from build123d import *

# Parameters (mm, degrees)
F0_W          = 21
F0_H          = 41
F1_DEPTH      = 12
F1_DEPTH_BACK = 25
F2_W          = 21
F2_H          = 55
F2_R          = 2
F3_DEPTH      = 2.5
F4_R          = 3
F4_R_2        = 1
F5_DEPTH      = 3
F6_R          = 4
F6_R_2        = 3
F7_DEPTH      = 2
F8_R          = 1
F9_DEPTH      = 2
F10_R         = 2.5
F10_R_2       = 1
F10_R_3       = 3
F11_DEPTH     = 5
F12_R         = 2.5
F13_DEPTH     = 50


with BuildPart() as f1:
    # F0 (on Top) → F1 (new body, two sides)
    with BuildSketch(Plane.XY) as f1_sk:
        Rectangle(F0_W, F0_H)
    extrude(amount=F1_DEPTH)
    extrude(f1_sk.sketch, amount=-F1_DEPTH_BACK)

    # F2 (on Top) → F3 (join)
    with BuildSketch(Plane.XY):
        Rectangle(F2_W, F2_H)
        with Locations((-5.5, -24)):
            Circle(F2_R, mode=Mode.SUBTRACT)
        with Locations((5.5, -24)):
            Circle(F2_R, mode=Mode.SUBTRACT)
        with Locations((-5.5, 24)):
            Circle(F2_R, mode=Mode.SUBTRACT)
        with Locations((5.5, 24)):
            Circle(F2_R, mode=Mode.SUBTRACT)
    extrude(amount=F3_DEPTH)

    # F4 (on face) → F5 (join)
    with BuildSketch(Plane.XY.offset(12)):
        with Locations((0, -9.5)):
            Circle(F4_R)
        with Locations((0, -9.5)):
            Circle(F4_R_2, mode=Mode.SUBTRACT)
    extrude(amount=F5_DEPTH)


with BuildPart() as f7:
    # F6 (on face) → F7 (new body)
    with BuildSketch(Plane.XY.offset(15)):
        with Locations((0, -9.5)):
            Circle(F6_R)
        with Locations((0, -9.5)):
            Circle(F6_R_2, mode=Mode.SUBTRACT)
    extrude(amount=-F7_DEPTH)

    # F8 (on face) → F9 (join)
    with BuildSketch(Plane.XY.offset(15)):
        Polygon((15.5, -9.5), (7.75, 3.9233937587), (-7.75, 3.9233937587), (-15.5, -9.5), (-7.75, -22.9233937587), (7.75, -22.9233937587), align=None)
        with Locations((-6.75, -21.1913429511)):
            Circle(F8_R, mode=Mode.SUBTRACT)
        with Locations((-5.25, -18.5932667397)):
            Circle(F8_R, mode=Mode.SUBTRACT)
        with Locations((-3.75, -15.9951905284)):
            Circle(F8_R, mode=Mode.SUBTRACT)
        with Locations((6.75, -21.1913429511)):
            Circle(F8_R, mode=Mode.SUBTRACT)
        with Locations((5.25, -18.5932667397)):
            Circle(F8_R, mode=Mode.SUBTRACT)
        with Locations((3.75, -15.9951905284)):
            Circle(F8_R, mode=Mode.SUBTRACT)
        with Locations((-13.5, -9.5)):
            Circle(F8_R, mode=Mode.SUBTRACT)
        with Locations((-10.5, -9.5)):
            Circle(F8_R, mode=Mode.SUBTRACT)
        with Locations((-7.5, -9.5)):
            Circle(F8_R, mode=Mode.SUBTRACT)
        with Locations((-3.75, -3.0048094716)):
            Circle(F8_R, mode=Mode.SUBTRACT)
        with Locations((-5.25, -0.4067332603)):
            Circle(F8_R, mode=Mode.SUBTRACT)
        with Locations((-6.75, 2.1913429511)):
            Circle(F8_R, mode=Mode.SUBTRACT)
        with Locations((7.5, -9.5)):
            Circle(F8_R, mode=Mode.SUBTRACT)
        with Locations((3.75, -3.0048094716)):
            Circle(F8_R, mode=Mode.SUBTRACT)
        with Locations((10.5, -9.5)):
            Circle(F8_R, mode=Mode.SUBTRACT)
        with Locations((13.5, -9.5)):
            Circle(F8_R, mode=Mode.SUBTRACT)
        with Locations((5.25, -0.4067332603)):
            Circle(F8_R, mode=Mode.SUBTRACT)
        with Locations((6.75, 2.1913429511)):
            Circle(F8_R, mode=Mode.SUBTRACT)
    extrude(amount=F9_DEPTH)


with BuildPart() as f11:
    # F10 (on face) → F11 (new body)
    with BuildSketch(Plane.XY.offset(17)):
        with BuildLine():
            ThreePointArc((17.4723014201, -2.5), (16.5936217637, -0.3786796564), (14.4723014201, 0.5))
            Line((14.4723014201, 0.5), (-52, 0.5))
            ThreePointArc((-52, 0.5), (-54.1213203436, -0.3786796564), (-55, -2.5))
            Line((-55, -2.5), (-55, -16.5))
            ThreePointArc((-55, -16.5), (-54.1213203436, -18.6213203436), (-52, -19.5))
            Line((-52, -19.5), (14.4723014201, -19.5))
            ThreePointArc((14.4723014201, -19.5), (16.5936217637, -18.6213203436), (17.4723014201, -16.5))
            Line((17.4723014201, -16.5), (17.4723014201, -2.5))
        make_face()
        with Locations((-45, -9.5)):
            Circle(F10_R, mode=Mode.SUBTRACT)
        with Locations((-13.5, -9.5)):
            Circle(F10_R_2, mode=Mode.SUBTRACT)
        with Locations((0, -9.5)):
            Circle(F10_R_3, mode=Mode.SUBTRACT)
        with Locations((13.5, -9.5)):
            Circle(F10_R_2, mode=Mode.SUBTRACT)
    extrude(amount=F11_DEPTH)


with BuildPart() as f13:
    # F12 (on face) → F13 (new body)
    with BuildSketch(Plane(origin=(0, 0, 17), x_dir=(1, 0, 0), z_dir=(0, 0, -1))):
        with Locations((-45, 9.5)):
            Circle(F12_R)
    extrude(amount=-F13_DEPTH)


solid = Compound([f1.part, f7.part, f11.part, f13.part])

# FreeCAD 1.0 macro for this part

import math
import FreeCAD as App
import Part
import Sketcher
Q = App.Units.Quantity

doc = App.newDocument("Part")
body = doc.addObject("PartDesign::Body", "Body")

# Sketch on XY plane
sketch1 = body.newObject("Sketcher::SketchObject", "Sketch")
sketch1.AttachmentSupport = (doc.getObject("XY_Plane"), [""])
sketch1.MapMode = "FlatFace"
sketch1.addGeometry([
    Part.LineSegment(App.Vector(-10.5, 20.5, 0), App.Vector(-10.5, -20.5, 0)),
    Part.LineSegment(App.Vector(-10.5, -20.5, 0), App.Vector(10.5, -20.5, 0)),
    Part.LineSegment(App.Vector(10.5, -20.5, 0), App.Vector(10.5, 20.5, 0)),
    Part.LineSegment(App.Vector(10.5, 20.5, 0), App.Vector(-10.5, 20.5, 0)),
], False)
sketch1.addConstraint([
    Sketcher.Constraint("Coincident", 0, 2, 1, 1),
    Sketcher.Constraint("Coincident", 1, 2, 2, 1),
    Sketcher.Constraint("Coincident", 2, 2, 3, 1),
    Sketcher.Constraint("Coincident", 3, 2, 0, 1),
    Sketcher.Constraint("Vertical", 0),
    Sketcher.Constraint("Horizontal", 1),
    Sketcher.Constraint("Vertical", 2),
    Sketcher.Constraint("Horizontal", 3),
    Sketcher.Constraint("Symmetric", 0, 2, 2, 2, -1, 1),
    Sketcher.Constraint("DistanceX", 1, 1, 1, 2, Q("21 mm")),
    Sketcher.Constraint("DistanceY", 0, 2, 0, 1, Q("41 mm")),
])
pad1 = body.newObject("PartDesign::Pad", "Pad")
pad1.Profile = sketch1
pad1.Type = "TwoLengths"
pad1.Length = 12
pad1.Length2 = 25

# Sketch on XY plane
sketch2 = body.newObject("Sketcher::SketchObject", "Sketch001")
sketch2.AttachmentSupport = (doc.getObject("XY_Plane"), [""])
sketch2.MapMode = "FlatFace"
sketch2.addGeometry([
    Part.LineSegment(App.Vector(-10.5, 27.5, 0), App.Vector(-10.5, -27.5, 0)),  # 0
    Part.LineSegment(App.Vector(-10.5, -27.5, 0), App.Vector(10.5, -27.5, 0)),  # 1
    Part.LineSegment(App.Vector(10.5, -27.5, 0), App.Vector(10.5, 27.5, 0)),  # 2
    Part.LineSegment(App.Vector(10.5, 27.5, 0), App.Vector(-10.5, 27.5, 0)),  # 3
    Part.Circle(App.Vector(-5.5, -24, 0), App.Vector(0, 0, 1), 2),  # 4
    Part.Circle(App.Vector(5.5, -24, 0), App.Vector(0, 0, 1), 2),  # 5
    Part.Circle(App.Vector(-5.5, 24, 0), App.Vector(0, 0, 1), 2),  # 6
    Part.Circle(App.Vector(5.5, 24, 0), App.Vector(0, 0, 1), 2),  # 7
], False)
sketch2.addConstraint([
    Sketcher.Constraint("Coincident", 0, 2, 1, 1),
    Sketcher.Constraint("Coincident", 1, 2, 2, 1),
    Sketcher.Constraint("Coincident", 2, 2, 3, 1),
    Sketcher.Constraint("Coincident", 3, 2, 0, 1),
    Sketcher.Constraint("Vertical", 0),
    Sketcher.Constraint("Horizontal", 1),
    Sketcher.Constraint("Vertical", 2),
    Sketcher.Constraint("Horizontal", 3),
    Sketcher.Constraint("Equal", 4, 5),
    Sketcher.Constraint("Equal", 5, 6),
    Sketcher.Constraint("Equal", 6, 7),
    Sketcher.Constraint("Symmetric", 5, 3, 6, 3, -1, 1),
    Sketcher.Constraint("Symmetric", 4, 3, 7, 3, -1, 1),
    Sketcher.Constraint("Symmetric", 0, 2, 2, 2, -1, 1),
    Sketcher.Constraint("Symmetric", 4, 3, 5, 3, -2),
    Sketcher.Constraint("Diameter", 4, Q("4 mm")),
    Sketcher.Constraint("DistanceX", 1, 1, 1, 2, Q("21 mm")),
    Sketcher.Constraint("DistanceY", 0, 2, 0, 1, Q("55 mm")),
    Sketcher.Constraint("DistanceY", 4, 3, -1, 1, Q("24 mm")),
    Sketcher.Constraint("DistanceX", 4, 3, 5, 3, Q("11 mm")),
])
pad2 = body.newObject("PartDesign::Pad", "Pad001")
pad2.Profile = sketch2
pad2.Length = 2.5

# Sketch on XY plane
sketch3 = body.newObject("Sketcher::SketchObject", "Sketch002")
sketch3.AttachmentSupport = (doc.getObject("XY_Plane"), [""])
sketch3.MapMode = "FlatFace"
sketch3.AttachmentOffset = App.Placement(App.Vector(0, 0, 12), App.Rotation())
sketch3.addGeometry([
    Part.Circle(App.Vector(0, -9.5, 0), App.Vector(0, 0, 1), 3),
    Part.Circle(App.Vector(0, -9.5, 0), App.Vector(0, 0, 1), 1),
], False)
sketch3.addConstraint([
    Sketcher.Constraint("Coincident", 1, 3, 0, 3),
    Sketcher.Constraint("PointOnObject", 0, 3, -2),
    Sketcher.Constraint("Diameter", 0, Q("6 mm")),
    Sketcher.Constraint("Diameter", 1, Q("2 mm")),
    Sketcher.Constraint("DistanceY", 0, 3, -1, 1, Q("9.5 mm")),
])
pad3 = body.newObject("PartDesign::Pad", "Pad002")
pad3.Profile = sketch3
pad3.Length = 3
body2 = doc.addObject("PartDesign::Body", "Body001")

# Sketch on XY plane
sketch4 = body2.newObject("Sketcher::SketchObject", "Sketch003")
sketch4.AttachmentSupport = (doc.getObject("XY_Plane001"), [""])
sketch4.MapMode = "FlatFace"
sketch4.AttachmentOffset = App.Placement(App.Vector(0, 0, 15), App.Rotation())
sketch4.addGeometry([
    Part.Circle(App.Vector(0, -9.5, 0), App.Vector(0, 0, 1), 4),
    Part.Circle(App.Vector(0, -9.5, 0), App.Vector(0, 0, 1), 3),
], False)
sketch4.addConstraint([
    Sketcher.Constraint("Coincident", 1, 3, 0, 3),
    Sketcher.Constraint("PointOnObject", 0, 3, -2),
    Sketcher.Constraint("Diameter", 0, Q("8 mm")),
    Sketcher.Constraint("Diameter", 1, Q("6 mm")),
    Sketcher.Constraint("DistanceY", 0, 3, -1, 1, Q("9.5 mm")),
])
pad4 = body2.newObject("PartDesign::Pad", "Pad003")
pad4.Profile = sketch4
pad4.Length = 2
pad4.Reversed = True

# Sketch on XY plane
sketch5 = body2.newObject("Sketcher::SketchObject", "Sketch004")
sketch5.AttachmentSupport = (doc.getObject("XY_Plane001"), [""])
sketch5.MapMode = "FlatFace"
sketch5.AttachmentOffset = App.Placement(App.Vector(0, 0, 15), App.Rotation())
sketch5.addGeometry([
    Part.LineSegment(App.Vector(15.5, -9.5, 0), App.Vector(7.75, 3.923394, 0)),  # 0
    Part.LineSegment(App.Vector(7.75, 3.923394, 0), App.Vector(-7.75, 3.923394, 0)),  # 1
    Part.LineSegment(App.Vector(-7.75, 3.923394, 0), App.Vector(-15.5, -9.5, 0)),  # 2
    Part.LineSegment(App.Vector(-15.5, -9.5, 0), App.Vector(-7.75, -22.923394, 0)),  # 3
    Part.LineSegment(App.Vector(-7.75, -22.923394, 0), App.Vector(7.75, -22.923394, 0)),  # 4
    Part.LineSegment(App.Vector(7.75, -22.923394, 0), App.Vector(15.5, -9.5, 0)),  # 5
    Part.Circle(App.Vector(-6.75, -21.191343, 0), App.Vector(0, 0, 1), 1),  # 6
    Part.Circle(App.Vector(-5.25, -18.593267, 0), App.Vector(0, 0, 1), 1),  # 7
    Part.Circle(App.Vector(-3.75, -15.995191, 0), App.Vector(0, 0, 1), 1),  # 8
    Part.Circle(App.Vector(6.75, -21.191343, 0), App.Vector(0, 0, 1), 1),  # 9
    Part.Circle(App.Vector(5.25, -18.593267, 0), App.Vector(0, 0, 1), 1),  # 10
    Part.Circle(App.Vector(3.75, -15.995191, 0), App.Vector(0, 0, 1), 1),  # 11
    Part.Circle(App.Vector(-13.5, -9.5, 0), App.Vector(0, 0, 1), 1),  # 12
    Part.Circle(App.Vector(-10.5, -9.5, 0), App.Vector(0, 0, 1), 1),  # 13
    Part.Circle(App.Vector(-7.5, -9.5, 0), App.Vector(0, 0, 1), 1),  # 14
    Part.Circle(App.Vector(-3.75, -3.004809, 0), App.Vector(0, 0, 1), 1),  # 15
    Part.Circle(App.Vector(-5.25, -0.406733, 0), App.Vector(0, 0, 1), 1),  # 16
    Part.Circle(App.Vector(-6.75, 2.191343, 0), App.Vector(0, 0, 1), 1),  # 17
    Part.Circle(App.Vector(7.5, -9.5, 0), App.Vector(0, 0, 1), 1),  # 18
    Part.Circle(App.Vector(10.5, -9.5, 0), App.Vector(0, 0, 1), 1),  # 19
    Part.Circle(App.Vector(13.5, -9.5, 0), App.Vector(0, 0, 1), 1),  # 20
    Part.Circle(App.Vector(3.75, -3.004809, 0), App.Vector(0, 0, 1), 1),  # 21
    Part.Circle(App.Vector(5.25, -0.406733, 0), App.Vector(0, 0, 1), 1),  # 22
    Part.Circle(App.Vector(6.75, 2.191343, 0), App.Vector(0, 0, 1), 1),  # 23
], False)
sketch5.addConstraint([
    Sketcher.Constraint("Coincident", 0, 2, 1, 1),
    Sketcher.Constraint("Coincident", 1, 2, 2, 1),
    Sketcher.Constraint("Coincident", 2, 2, 3, 1),
    Sketcher.Constraint("Coincident", 3, 2, 4, 1),
    Sketcher.Constraint("Coincident", 4, 2, 5, 1),
    Sketcher.Constraint("Coincident", 5, 2, 0, 1),
    Sketcher.Constraint("Horizontal", 1),
    Sketcher.Constraint("Horizontal", 4),
    Sketcher.Constraint("Equal", 6, 7),
    Sketcher.Constraint("Equal", 7, 8),
    Sketcher.Constraint("Equal", 8, 9),
    Sketcher.Constraint("Equal", 9, 10),
    Sketcher.Constraint("Equal", 10, 11),
    Sketcher.Constraint("Equal", 11, 12),
    Sketcher.Constraint("Equal", 12, 13),
    Sketcher.Constraint("Equal", 13, 14),
    Sketcher.Constraint("Equal", 14, 15),
    Sketcher.Constraint("Equal", 15, 16),
    Sketcher.Constraint("Equal", 16, 17),
    Sketcher.Constraint("Equal", 17, 18),
    Sketcher.Constraint("Equal", 18, 19),
    Sketcher.Constraint("Equal", 19, 20),
    Sketcher.Constraint("Equal", 20, 21),
    Sketcher.Constraint("Equal", 21, 22),
    Sketcher.Constraint("Equal", 22, 23),
    Sketcher.Constraint("Symmetric", 6, 3, 9, 3, -2),
    Sketcher.Constraint("Symmetric", 7, 3, 10, 3, -2),
    Sketcher.Constraint("Symmetric", 8, 3, 11, 3, -2),
    Sketcher.Constraint("Symmetric", 14, 3, 18, 3, -2),
    Sketcher.Constraint("Symmetric", 13, 3, 19, 3, -2),
    Sketcher.Constraint("Symmetric", 12, 3, 20, 3, -2),
    Sketcher.Constraint("Symmetric", 15, 3, 21, 3, -2),
    Sketcher.Constraint("Symmetric", 16, 3, 22, 3, -2),
    Sketcher.Constraint("Symmetric", 17, 3, 23, 3, -2),
    Sketcher.Constraint("Symmetric", 2, 2, 5, 2, -2),
    Sketcher.Constraint("Parallel", 0, 3),
    Sketcher.Constraint("Parallel", 2, 5),
    Sketcher.Constraint("Horizontal", 12, 3, 13, 3),
    Sketcher.Constraint("Horizontal", 13, 3, 14, 3),
    Sketcher.Constraint("Horizontal", 20, 3, 2, 2),
    Sketcher.Constraint("Vertical", 8, 3, 15, 3),
    Sketcher.Constraint("Vertical", 7, 3, 16, 3),
    Sketcher.Constraint("Vertical", 6, 3, 17, 3),
    Sketcher.Constraint("Vertical", 1, 2, 3, 2),
    Sketcher.Constraint("Vertical", 0, 2, 4, 2),
    Sketcher.Constraint("Diameter", 6, Q("2 mm")),
    Sketcher.Constraint("Angle", 0, Q("120 deg")),
    Sketcher.Constraint("DistanceX", 1, 2, 1, 1, Q("15.5 mm")),
    Sketcher.Constraint("DistanceX", 6, 3, 8, 3, Q("3 mm")),
    Sketcher.Constraint("DistanceX", 7, 3, 9, 3, Q("12 mm")),
    Sketcher.Constraint("DistanceX", 12, 3, 13, 3, Q("3 mm")),
    Sketcher.Constraint("DistanceX", 13, 3, 14, 3, Q("3 mm")),
    Sketcher.Constraint("DistanceX", 23, 3, 0, 2, Q("1 mm")),
    Sketcher.Constraint("DistanceX", 2, 2, 12, 3, Q("2 mm")),
    Sketcher.Constraint("Distance", 0, Q("15.5 mm")),
    Sketcher.Constraint("DistanceY", 12, 3, -1, 1, Q("9.5 mm")),
    Sketcher.Constraint("DistanceY", 8, 3, -1, 1, Q("15.995191 mm")),
    Sketcher.Constraint("DistanceY", 15, 3, -1, 1, Q("3.004809 mm")),
    Sketcher.Constraint("DistanceY", 23, 3, 0, 2, Q("1.732051 mm")),
    Sketcher.Constraint("DistanceY", 3, 2, 6, 3, Q("1.732051 mm")),
    Sketcher.Constraint("DistanceY", 7, 3, -1, 1, Q("18.593267 mm")),
    Sketcher.Constraint("DistanceY", 16, 3, -1, 1, Q("0.406733 mm")),
])
pad5 = body2.newObject("PartDesign::Pad", "Pad004")
pad5.Profile = sketch5
pad5.Length = 2
body3 = doc.addObject("PartDesign::Body", "Body002")

# Sketch on XY plane
sketch6 = body3.newObject("Sketcher::SketchObject", "Sketch005")
sketch6.AttachmentSupport = (doc.getObject("XY_Plane002"), [""])
sketch6.MapMode = "FlatFace"
sketch6.AttachmentOffset = App.Placement(App.Vector(0, 0, 17), App.Rotation())
sketch6.addGeometry([
    Part.ArcOfCircle(Part.Circle(App.Vector(14.472301, -2.5, 0), App.Vector(0, 0, 1), 3), math.radians(0), math.radians(90)),  # 0
    Part.LineSegment(App.Vector(14.472301, 0.5, 0), App.Vector(-52, 0.5, 0)),  # 1
    Part.ArcOfCircle(Part.Circle(App.Vector(-52, -2.5, 0), App.Vector(0, 0, 1), 3), math.radians(90), math.radians(180)),  # 2
    Part.LineSegment(App.Vector(-55, -2.5, 0), App.Vector(-55, -16.5, 0)),  # 3
    Part.ArcOfCircle(Part.Circle(App.Vector(-52, -16.5, 0), App.Vector(0, 0, 1), 3), math.radians(180), math.radians(270)),  # 4
    Part.LineSegment(App.Vector(-52, -19.5, 0), App.Vector(14.472301, -19.5, 0)),  # 5
    Part.ArcOfCircle(Part.Circle(App.Vector(14.472301, -16.5, 0), App.Vector(0, 0, 1), 3), math.radians(-90), math.radians(0)),  # 6
    Part.LineSegment(App.Vector(17.472301, -16.5, 0), App.Vector(17.472301, -2.5, 0)),  # 7
    Part.Circle(App.Vector(-45, -9.5, 0), App.Vector(0, 0, 1), 2.5),  # 8
    Part.Circle(App.Vector(-13.5, -9.5, 0), App.Vector(0, 0, 1), 1),  # 9
    Part.Circle(App.Vector(0, -9.5, 0), App.Vector(0, 0, 1), 3),  # 10
    Part.Circle(App.Vector(13.5, -9.5, 0), App.Vector(0, 0, 1), 1),  # 11
], False)
sketch6.addConstraint([
    Sketcher.Constraint("Tangent", 0, 2, 1, 1),
    Sketcher.Constraint("Tangent", 1, 2, 2, 1),
    Sketcher.Constraint("Tangent", 2, 2, 3, 1),
    Sketcher.Constraint("Tangent", 3, 2, 4, 1),
    Sketcher.Constraint("Tangent", 4, 2, 5, 1),
    Sketcher.Constraint("Tangent", 5, 2, 6, 1),
    Sketcher.Constraint("Tangent", 6, 2, 7, 1),
    Sketcher.Constraint("Tangent", 7, 2, 0, 1),
    Sketcher.Constraint("Horizontal", 1),
    Sketcher.Constraint("Vertical", 3),
    Sketcher.Constraint("Horizontal", 5),
    Sketcher.Constraint("Vertical", 7),
    Sketcher.Constraint("Equal", 0, 2),
    Sketcher.Constraint("Equal", 2, 4),
    Sketcher.Constraint("Equal", 4, 6),
    Sketcher.Constraint("Equal", 6, 10),
    Sketcher.Constraint("Equal", 9, 11),
    Sketcher.Constraint("Symmetric", 9, 3, 11, 3, -2),
    Sketcher.Constraint("PointOnObject", 10, 3, -2),
    Sketcher.Constraint("Horizontal", 8, 3, 9, 3),
    Sketcher.Constraint("Horizontal", 9, 3, 10, 3),
    Sketcher.Constraint("Diameter", 8, Q("5 mm")),
    Sketcher.Constraint("Diameter", 9, Q("2 mm")),
    Sketcher.Constraint("Diameter", 10, Q("6 mm")),
    Sketcher.Constraint("DistanceY", 3, 2, 3, 1, Q("14 mm")),
    Sketcher.Constraint("DistanceX", 2, 3, -1, 1, Q("52 mm")),
    Sketcher.Constraint("DistanceX", 8, 3, -1, 1, Q("45 mm")),
    Sketcher.Constraint("DistanceY", 8, 3, 2, 3, Q("7 mm")),
    Sketcher.Constraint("DistanceX", 9, 3, 11, 3, Q("27 mm")),
    Sketcher.Constraint("DistanceY", 0, 3, -1, 1, Q("2.5 mm")),
    Sketcher.Constraint("DistanceX", 1, 2, 1, 1, Q("66.472301 mm")),
])
pad6 = body3.newObject("PartDesign::Pad", "Pad005")
pad6.Profile = sketch6
pad6.Length = 5
body4 = doc.addObject("PartDesign::Body", "Body003")

# Sketch on XY plane
sketch7 = body4.newObject("Sketcher::SketchObject", "Sketch006")
sketch7.AttachmentSupport = (doc.getObject("XY_Plane003"), [""])
sketch7.MapMode = "FlatFace"
sketch7.AttachmentOffset = App.Placement(App.Vector(0, 0, 17), App.Rotation())
sketch7.addGeometry(Part.Circle(App.Vector(-45, -9.5, 0), App.Vector(0, 0, 1), 2.5), False)
sketch7.addConstraint([
    Sketcher.Constraint("Diameter", 0, Q("5 mm")),
    Sketcher.Constraint("DistanceX", 0, 3, -1, 1, Q("45 mm")),
    Sketcher.Constraint("DistanceY", 0, 3, -1, 1, Q("9.5 mm")),
])
pad7 = body4.newObject("PartDesign::Pad", "Pad006")
pad7.Profile = sketch7
pad7.Length = 50

doc.recompute()
